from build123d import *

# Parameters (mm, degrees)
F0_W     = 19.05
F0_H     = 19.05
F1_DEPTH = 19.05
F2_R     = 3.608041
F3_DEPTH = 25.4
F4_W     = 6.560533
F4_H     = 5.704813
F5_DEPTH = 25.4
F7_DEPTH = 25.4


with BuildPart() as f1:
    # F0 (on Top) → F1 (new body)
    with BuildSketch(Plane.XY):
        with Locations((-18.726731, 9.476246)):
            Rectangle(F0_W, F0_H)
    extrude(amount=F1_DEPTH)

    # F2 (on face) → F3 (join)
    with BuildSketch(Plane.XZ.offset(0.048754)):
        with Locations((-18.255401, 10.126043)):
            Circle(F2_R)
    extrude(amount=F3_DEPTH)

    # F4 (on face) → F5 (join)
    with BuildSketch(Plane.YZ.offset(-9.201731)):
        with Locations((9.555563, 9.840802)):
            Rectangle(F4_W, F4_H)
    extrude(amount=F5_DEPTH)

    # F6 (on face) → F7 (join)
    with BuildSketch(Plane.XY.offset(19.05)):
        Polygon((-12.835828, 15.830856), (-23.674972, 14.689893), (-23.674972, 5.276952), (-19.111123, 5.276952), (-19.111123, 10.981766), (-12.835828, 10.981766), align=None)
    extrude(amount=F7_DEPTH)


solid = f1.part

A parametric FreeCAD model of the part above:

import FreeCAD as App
import Part
import Sketcher
from FreeCAD import Vector
Q = App.Units.Quantity


def add_polygon(sketch, points):
    """Adds a closed chain of lines whose ends are joined by coincident constraints."""
    first, n = sketch.GeometryCount, len(points)
    for a, b in zip(points, points[1:] + points[:1]):
        sketch.addGeometry(Part.LineSegment(App.Vector(*a, 0), App.Vector(*b, 0)), False)
    for i in range(n):
        sketch.addConstraint(Sketcher.Constraint("Coincident", first + i, 2, first + (i + 1) % n, 1))

doc = App.newDocument("Part")
body = doc.addObject("PartDesign::Body", "Body")

# Sketch on XY plane
sketch1 = doc.addObject("Sketcher::SketchObject", "Sketch")
body.addObject(sketch1)
sketch1.AttachmentSupport = (doc.XY_Plane, [""])
sketch1.MapMode = "FlatFace"
add_polygon(sketch1, [(-28, 19), (-28, 0), (-9, 0), (-9, 19)])  # lines 0-3
sketch1.addConstraint(Sketcher.Constraint("Vertical", 0))
sketch1.addConstraint(Sketcher.Constraint("Horizontal", 1))
sketch1.addConstraint(Sketcher.Constraint("Vertical", 2))
sketch1.addConstraint(Sketcher.Constraint("Horizontal", 3))
sketch1.addConstraint(Sketcher.Constraint("Equal", 3, 0))
sketch1.addConstraint(Sketcher.Constraint("DistanceX", 1, 1, 1, 2, Q("0.75 in")))
sketch1.addConstraint(Sketcher.Constraint("DistanceX", 0, 2, -1, 1, Q("28.251731 mm")))
sketch1.addConstraint(Sketcher.Constraint("DistanceY", 0, 2, -1, 1, Q("0.048754 mm")))
pad1 = doc.addObject("PartDesign::Pad", "Pad")
body.addObject(pad1)
pad1.Profile = sketch1
pad1.Length = Q("0.75 in")

# Sketch on XZ plane
sketch2 = doc.addObject("Sketcher::SketchObject", "Sketch001")
body.addObject(sketch2)
sketch2.AttachmentSupport = (doc.XZ_Plane, [""])
sketch2.MapMode = "FlatFace"
sketch2.AttachmentOffset = App.Placement(Vector(0, 0, 0.048754), App.Rotation())
sketch2.addGeometry(Part.Circle(Vector(-18.3, 10.1, 0), Vector(0, 0, 1), 3.6), False)
sketch2.addConstraint(Sketcher.Constraint("Diameter", 0, Q("7.216082 mm")))
sketch2.addConstraint(Sketcher.Constraint("DistanceX", 0, 3, -1, 1, Q("18.255401 mm")))
sketch2.addConstraint(Sketcher.Constraint("DistanceY", -1, 1, 0, 3, Q("10.126043 mm")))
pad2 = doc.addObject("PartDesign::Pad", "Pad001")
body.addObject(pad2)
pad2.Profile = sketch2
pad2.Length = Q("1 in")

# Sketch on YZ plane
sketch3 = doc.addObject("Sketcher::SketchObject", "Sketch002")
body.addObject(sketch3)
sketch3.AttachmentSupport = (doc.YZ_Plane, [""])
sketch3.MapMode = "FlatFace"
sketch3.AttachmentOffset = App.Placement(Vector(0, 0, -9.201731), App.Rotation())
add_polygon(sketch3, [(6, 13), (6, 7), (13, 7), (13, 13)])  # lines 0-3
sketch3.addConstraint(Sketcher.Constraint("Vertical", 0))
sketch3.addConstraint(Sketcher.Constraint("Horizontal", 1))
sketch3.addConstraint(Sketcher.Constraint("Vertical", 2))
sketch3.addConstraint(Sketcher.Constraint("Horizontal", 3))
sketch3.addConstraint(Sketcher.Constraint("DistanceX", 1, 1, 1, 2, Q("6.560533 mm")))
sketch3.addConstraint(Sketcher.Constraint("DistanceY", 0, 2, 0, 1, Q("5.704813 mm")))
sketch3.addConstraint(Sketcher.Constraint("DistanceX", -1, 1, 1, 2, Q("12.835829 mm")))
sketch3.addConstraint(Sketcher.Constraint("DistanceY", -1, 1, 2, 2, Q("12.693209 mm")))
pad3 = doc.addObject("PartDesign::Pad", "Pad002")
body.addObject(pad3)
pad3.Profile = sketch3
pad3.Length = Q("1 in")

# Sketch on XY plane
sketch4 = doc.addObject("Sketcher::SketchObject", "Sketch003")
body.addObject(sketch4)
sketch4.AttachmentSupport = (doc.XY_Plane, [""])
sketch4.MapMode = "FlatFace"
sketch4.AttachmentOffset = App.Placement(Vector(0, 0, 0.75 * 25.4), App.Rotation())
add_polygon(sketch4, [(-12.8, 15.8), (-23.7, 14.7), (-23.7, 5.3), (-19.1, 5.3), (-19.1, 11), (-12.8, 11)])  # lines 0-5
sketch4.addConstraint(Sketcher.Constraint("Vertical", 1))
sketch4.addConstraint(Sketcher.Constraint("Horizontal", 2))
sketch4.addConstraint(Sketcher.Constraint("Vertical", 3))
sketch4.addConstraint(Sketcher.Constraint("Horizontal", 4))
sketch4.addConstraint(Sketcher.Constraint("Vertical", 5))
sketch4.addConstraint(Sketcher.Constraint("DistanceX", 2, 1, 2, 2, Q("4.563849 mm")))
sketch4.addConstraint(Sketcher.Constraint("DistanceY", 1, 2, 1, 1, Q("9.412941 mm")))
sketch4.addConstraint(Sketcher.Constraint("DistanceY", 5, 1, 5, 2, Q("4.84909 mm")))
sketch4.addConstraint(Sketcher.Constraint("Distance", 0, Q("10.899029 mm")))
sketch4.addConstraint(Sketcher.Constraint("DistanceX", 4, 1, 4, 2, Q("6.275295 mm")))
sketch4.addConstraint(Sketcher.Constraint("DistanceY", -1, 1, 1, 2, Q("5.276952 mm")))
sketch4.addConstraint(Sketcher.Constraint("DistanceX", 0, 2, -1, 1, Q("23.674972 mm")))
pad4 = doc.addObject("PartDesign::Pad", "Pad003")
body.addObject(pad4)
pad4.Profile = sketch4
pad4.Length = Q("1 in")

doc.recompute()
